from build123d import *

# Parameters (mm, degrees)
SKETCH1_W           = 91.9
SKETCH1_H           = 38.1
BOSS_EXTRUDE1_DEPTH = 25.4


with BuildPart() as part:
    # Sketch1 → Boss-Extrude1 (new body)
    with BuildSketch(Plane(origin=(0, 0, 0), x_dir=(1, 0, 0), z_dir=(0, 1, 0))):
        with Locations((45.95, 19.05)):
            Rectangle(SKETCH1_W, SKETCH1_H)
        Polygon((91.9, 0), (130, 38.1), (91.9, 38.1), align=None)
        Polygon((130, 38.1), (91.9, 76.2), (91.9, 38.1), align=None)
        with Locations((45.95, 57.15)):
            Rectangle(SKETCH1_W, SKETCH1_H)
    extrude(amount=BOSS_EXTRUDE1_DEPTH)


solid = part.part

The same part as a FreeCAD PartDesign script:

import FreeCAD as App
import Part
import Sketcher

V = App.Vector
Q = App.Units.Quantity

doc = App.newDocument("Part")
params = doc.addObject("Spreadsheet::Sheet", "Params")
for row, (alias, value) in enumerate([
    ("sketch1_height", "3 in"),
    ("pad1_length", "1 in"),
], start=1):
    params.set(f"A{row}", alias)
    params.set(f"B{row}", "=" + value)
    params.setAlias(f"B{row}", alias)

body = doc.addObject("PartDesign::Body", "Body")

# Sketch on XZ plane
sketch1 = doc.addObject("Sketcher::SketchObject", "Sketch")
body.addObject(sketch1)
sketch1.AttachmentSupport = (doc.XZ_Plane, [""])
sketch1.MapMode = "FlatFace"
sketch1.addGeometry([
    Part.LineSegment(V(0, 0, 0), V(92, 0, 0)),  # 0
    Part.LineSegment(V(92, 0, 0), V(130, -38, 0)),  # 1
    Part.LineSegment(V(130, -38, 0), V(92, -76, 0)),  # 2
    Part.LineSegment(V(92, -76, 0), V(0, -76, 0)),  # 3
    Part.LineSegment(V(0, -76, 0), V(0, 0, 0)),  # 4
], False)
sketch1.addConstraint([
    Sketcher.Constraint("Coincident", 0, 2, 1, 1),
    Sketcher.Constraint("Coincident", 1, 2, 2, 1),
    Sketcher.Constraint("Coincident", 2, 2, 3, 1),
    Sketcher.Constraint("Coincident", 3, 2, 4, 1),
    Sketcher.Constraint("Coincident", 4, 2, 0, 1),
    Sketcher.Constraint("Horizontal", 0),
    Sketcher.Constraint("Horizontal", 3),
    Sketcher.Constraint("Vertical", 4),
    Sketcher.Constraint("Coincident", 4, 2, -1, 1),
    Sketcher.Constraint("Perpendicular", 1, 2),
    Sketcher.Constraint("Vertical", 0, 2, 2, 2),
    Sketcher.Constraint("Equal", 1, 2),
    Sketcher.Constraint("DistanceY", 4, 1, 4, 2, Q("3 in")),
    Sketcher.Constraint("DistanceX", 0, 1, 0, 2, Q("91.9 mm")),
])
sketch1.setExpression("Constraints[12]", "Params.sketch1_height")
pad1 = doc.addObject("PartDesign::Pad", "Pad")
body.addObject(pad1)
pad1.Profile = sketch1
pad1.setExpression("Length", "Params.pad1_length")
pad1.Reversed = True

doc.recompute()
